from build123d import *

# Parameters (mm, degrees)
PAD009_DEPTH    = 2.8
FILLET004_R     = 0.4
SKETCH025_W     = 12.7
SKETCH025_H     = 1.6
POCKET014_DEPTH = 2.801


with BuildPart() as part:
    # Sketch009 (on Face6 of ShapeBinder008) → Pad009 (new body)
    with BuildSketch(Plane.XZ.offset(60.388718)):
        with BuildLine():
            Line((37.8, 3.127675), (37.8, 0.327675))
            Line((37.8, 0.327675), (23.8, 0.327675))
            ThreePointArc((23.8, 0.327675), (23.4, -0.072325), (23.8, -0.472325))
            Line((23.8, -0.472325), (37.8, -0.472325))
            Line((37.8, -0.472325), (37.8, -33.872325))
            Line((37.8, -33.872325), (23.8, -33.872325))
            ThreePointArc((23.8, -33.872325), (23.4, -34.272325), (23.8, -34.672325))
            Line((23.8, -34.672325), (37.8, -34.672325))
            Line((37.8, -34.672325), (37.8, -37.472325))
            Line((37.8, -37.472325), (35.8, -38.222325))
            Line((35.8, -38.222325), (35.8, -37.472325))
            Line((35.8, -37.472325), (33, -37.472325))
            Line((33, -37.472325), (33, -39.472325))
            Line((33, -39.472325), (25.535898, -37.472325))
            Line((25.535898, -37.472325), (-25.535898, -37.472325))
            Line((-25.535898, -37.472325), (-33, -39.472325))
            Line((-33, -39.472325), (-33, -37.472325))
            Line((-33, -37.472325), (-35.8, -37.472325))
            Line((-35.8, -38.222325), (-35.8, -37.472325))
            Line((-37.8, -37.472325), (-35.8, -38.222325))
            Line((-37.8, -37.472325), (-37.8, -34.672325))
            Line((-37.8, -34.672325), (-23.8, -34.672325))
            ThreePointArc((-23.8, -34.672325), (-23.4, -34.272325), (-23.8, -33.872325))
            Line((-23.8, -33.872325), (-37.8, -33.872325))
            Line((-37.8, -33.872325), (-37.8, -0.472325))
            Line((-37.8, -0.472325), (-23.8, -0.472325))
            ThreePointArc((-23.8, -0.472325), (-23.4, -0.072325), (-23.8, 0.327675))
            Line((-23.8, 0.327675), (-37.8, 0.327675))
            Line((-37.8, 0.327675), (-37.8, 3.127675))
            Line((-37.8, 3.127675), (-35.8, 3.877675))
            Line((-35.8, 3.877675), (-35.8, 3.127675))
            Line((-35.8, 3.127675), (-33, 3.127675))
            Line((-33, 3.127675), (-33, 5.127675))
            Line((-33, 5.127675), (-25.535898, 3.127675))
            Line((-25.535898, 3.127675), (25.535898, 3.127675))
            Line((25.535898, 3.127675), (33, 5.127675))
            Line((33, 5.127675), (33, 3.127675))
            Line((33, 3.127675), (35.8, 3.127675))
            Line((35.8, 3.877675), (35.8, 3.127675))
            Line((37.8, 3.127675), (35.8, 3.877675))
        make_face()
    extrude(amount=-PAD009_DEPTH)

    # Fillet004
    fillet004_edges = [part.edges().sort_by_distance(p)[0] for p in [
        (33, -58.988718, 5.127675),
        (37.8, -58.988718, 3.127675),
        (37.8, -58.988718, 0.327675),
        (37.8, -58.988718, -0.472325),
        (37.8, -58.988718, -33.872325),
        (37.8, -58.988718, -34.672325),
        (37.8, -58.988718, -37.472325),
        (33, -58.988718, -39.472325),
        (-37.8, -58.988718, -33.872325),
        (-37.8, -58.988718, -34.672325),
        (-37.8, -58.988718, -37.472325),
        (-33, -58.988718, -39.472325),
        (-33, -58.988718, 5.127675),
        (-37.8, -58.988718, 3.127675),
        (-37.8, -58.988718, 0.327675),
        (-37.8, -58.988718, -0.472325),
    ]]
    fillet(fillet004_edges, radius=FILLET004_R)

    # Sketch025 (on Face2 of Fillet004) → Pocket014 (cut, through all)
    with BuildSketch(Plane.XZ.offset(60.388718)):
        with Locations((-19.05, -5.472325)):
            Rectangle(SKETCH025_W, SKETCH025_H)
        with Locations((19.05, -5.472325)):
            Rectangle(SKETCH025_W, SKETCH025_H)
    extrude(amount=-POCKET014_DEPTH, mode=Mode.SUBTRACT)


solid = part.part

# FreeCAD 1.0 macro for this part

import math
import FreeCAD as App
import Part
import Sketcher

V = App.Vector
Q = App.Units.Quantity


def edges_at(feature, points):
    """Names of the edges that pass closest to the given points."""
    edges = feature.Shape.Edges
    near = lambda p: min(range(len(edges)), key=lambda i: edges[i].distToShape(Part.Vertex(*p))[0])
    return sorted({f"Edge{near(p) + 1}" for p in points})

doc = App.newDocument("Part")
body = doc.addObject("PartDesign::Body", "Body")

# Sketch on XZ plane
sketch1 = body.newObject("Sketcher::SketchObject", "Sketch")
sketch1.AttachmentSupport = (doc.getObject("XZ_Plane"), [""])
sketch1.MapMode = "FlatFace"
sketch1.AttachmentOffset = App.Placement(V(0, 0, 60.388718), App.Rotation())
sketch1.addGeometry([
    Part.LineSegment(V(37.8, 0.327675, 0), V(37.8, 3.127675, 0)),  # 0
    Part.LineSegment(V(37.8, 3.127675, 0), V(35.8, 3.877675, 0)),  # 1
    Part.LineSegment(V(35.8, 3.877675, 0), V(35.8, 3.127675, 0)),  # 2
    Part.LineSegment(V(35.8, 3.127675, 0), V(33, 3.127675, 0)),  # 3
    Part.LineSegment(V(33, 3.127675, 0), V(33, 5.127675, 0)),  # 4
    Part.LineSegment(V(33, 5.127675, 0), V(25.535898, 3.127675, 0)),  # 5
    Part.LineSegment(V(25.535898, 3.127675, 0), V(-25.535898, 3.127675, 0)),  # 6
    Part.LineSegment(V(-25.535898, 3.127675, 0), V(-33, 5.127675, 0)),  # 7
    Part.LineSegment(V(-33, 5.127675, 0), V(-33, 3.127675, 0)),  # 8
    Part.LineSegment(V(-33, 3.127675, 0), V(-35.8, 3.127675, 0)),  # 9
    Part.LineSegment(V(-35.8, 3.127675, 0), V(-35.8, 3.877675, 0)),  # 10
    Part.LineSegment(V(-35.8, 3.877675, 0), V(-37.8, 3.127675, 0)),  # 11
    Part.LineSegment(V(-37.8, 3.127675, 0), V(-37.8, 0.327675, 0)),  # 12
    Part.LineSegment(V(-37.8, 0.327675, 0), V(-23.8, 0.327675, 0)),  # 13
    Part.ArcOfCircle(Part.Circle(V(-23.8, -0.072325, 0), V(0, 0, 1), 0.4), math.radians(-90), math.radians(90)),  # 14
    Part.LineSegment(V(-23.8, -0.472325, 0), V(-37.8, -0.472325, 0)),  # 15
    Part.LineSegment(V(-37.8, -0.472325, 0), V(-37.8, -33.872325, 0)),  # 16
    Part.LineSegment(V(-37.8, -33.872325, 0), V(-23.8, -33.872325, 0)),  # 17
    Part.ArcOfCircle(Part.Circle(V(-23.8, -34.272325, 0), V(0, 0, 1), 0.4), math.radians(-90), math.radians(90)),  # 18
    Part.LineSegment(V(-23.8, -34.672325, 0), V(-37.8, -34.672325, 0)),  # 19
    Part.LineSegment(V(-37.8, -34.672325, 0), V(-37.8, -37.472325, 0)),  # 20
    Part.LineSegment(V(-37.8, -37.472325, 0), V(-35.8, -38.222325, 0)),  # 21
    Part.LineSegment(V(-35.8, -38.222325, 0), V(-35.8, -37.472325, 0)),  # 22
    Part.LineSegment(V(-35.8, -37.472325, 0), V(-33, -37.472325, 0)),  # 23
    Part.LineSegment(V(-33, -37.472325, 0), V(-33, -39.472325, 0)),  # 24
    Part.LineSegment(V(-33, -39.472325, 0), V(-25.535898, -37.472325, 0)),  # 25
    Part.LineSegment(V(-25.535898, -37.472325, 0), V(25.535898, -37.472325, 0)),  # 26
    Part.LineSegment(V(25.535898, -37.472325, 0), V(33, -39.472325, 0)),  # 27
    Part.LineSegment(V(33, -39.472325, 0), V(33, -37.472325, 0)),  # 28
    Part.LineSegment(V(33, -37.472325, 0), V(35.8, -37.472325, 0)),  # 29
    Part.LineSegment(V(35.8, -37.472325, 0), V(35.8, -38.222325, 0)),  # 30
    Part.LineSegment(V(35.8, -38.222325, 0), V(37.8, -37.472325, 0)),  # 31
    Part.LineSegment(V(37.8, -37.472325, 0), V(37.8, -34.672325, 0)),  # 32
    Part.LineSegment(V(37.8, -34.672325, 0), V(23.8, -34.672325, 0)),  # 33
    Part.ArcOfCircle(Part.Circle(V(23.8, -34.272325, 0), V(0, 0, 1), 0.4), math.radians(90), math.radians(270)),  # 34
    Part.LineSegment(V(23.8, -33.872325, 0), V(37.8, -33.872325, 0)),  # 35
    Part.LineSegment(V(37.8, -33.872325, 0), V(37.8, -0.472325, 0)),  # 36
    Part.LineSegment(V(37.8, -0.472325, 0), V(23.8, -0.472325, 0)),  # 37
    Part.ArcOfCircle(Part.Circle(V(23.8, -0.072325, 0), V(0, 0, 1), 0.4), math.radians(90), math.radians(270)),  # 38
    Part.LineSegment(V(23.8, 0.327675, 0), V(37.8, 0.327675, 0)),  # 39
], False)
sketch1.addConstraint([
    Sketcher.Constraint("Coincident", 0, 2, 1, 1),
    Sketcher.Constraint("Coincident", 1, 2, 2, 1),
    Sketcher.Constraint("Coincident", 2, 2, 3, 1),
    Sketcher.Constraint("Coincident", 3, 2, 4, 1),
    Sketcher.Constraint("Coincident", 4, 2, 5, 1),
    Sketcher.Constraint("Coincident", 5, 2, 6, 1),
    Sketcher.Constraint("Coincident", 6, 2, 7, 1),
    Sketcher.Constraint("Coincident", 7, 2, 8, 1),
    Sketcher.Constraint("Coincident", 8, 2, 9, 1),
    Sketcher.Constraint("Coincident", 9, 2, 10, 1),
    Sketcher.Constraint("Coincident", 10, 2, 11, 1),
    Sketcher.Constraint("Coincident", 11, 2, 12, 1),
    Sketcher.Constraint("Coincident", 12, 2, 13, 1),
    Sketcher.Constraint("Tangent", 13, 2, 14, 2),
    Sketcher.Constraint("Tangent", 14, 1, 15, 1),
    Sketcher.Constraint("Coincident", 15, 2, 16, 1),
    Sketcher.Constraint("Coincident", 16, 2, 17, 1),
    Sketcher.Constraint("Tangent", 17, 2, 18, 2),
    Sketcher.Constraint("Tangent", 18, 1, 19, 1),
    Sketcher.Constraint("Coincident", 19, 2, 20, 1),
    Sketcher.Constraint("Coincident", 20, 2, 21, 1),
    Sketcher.Constraint("Coincident", 21, 2, 22, 1),
    Sketcher.Constraint("Coincident", 22, 2, 23, 1),
    Sketcher.Constraint("Coincident", 23, 2, 24, 1),
    Sketcher.Constraint("Coincident", 24, 2, 25, 1),
    Sketcher.Constraint("Coincident", 25, 2, 26, 1),
    Sketcher.Constraint("Coincident", 26, 2, 27, 1),
    Sketcher.Constraint("Coincident", 27, 2, 28, 1),
    Sketcher.Constraint("Coincident", 28, 2, 29, 1),
    Sketcher.Constraint("Coincident", 29, 2, 30, 1),
    Sketcher.Constraint("Coincident", 30, 2, 31, 1),
    Sketcher.Constraint("Coincident", 31, 2, 32, 1),
    Sketcher.Constraint("Coincident", 32, 2, 33, 1),
    Sketcher.Constraint("Tangent", 33, 2, 34, 2),
    Sketcher.Constraint("Tangent", 34, 1, 35, 1),
    Sketcher.Constraint("Coincident", 35, 2, 36, 1),
    Sketcher.Constraint("Coincident", 36, 2, 37, 1),
    Sketcher.Constraint("Tangent", 37, 2, 38, 2),
    Sketcher.Constraint("Tangent", 38, 1, 39, 1),
    Sketcher.Constraint("Coincident", 39, 2, 0, 1),
    Sketcher.Constraint("Vertical", 0),
    Sketcher.Constraint("Vertical", 2),
    Sketcher.Constraint("Horizontal", 3),
    Sketcher.Constraint("Vertical", 4),
    Sketcher.Constraint("Horizontal", 6),
    Sketcher.Constraint("Vertical", 8),
    Sketcher.Constraint("Horizontal", 9),
    Sketcher.Constraint("Vertical", 10),
    Sketcher.Constraint("Vertical", 12),
    Sketcher.Constraint("Horizontal", 13),
    Sketcher.Constraint("Horizontal", 15),
    Sketcher.Constraint("Vertical", 16),
    Sketcher.Constraint("Horizontal", 17),
    Sketcher.Constraint("Horizontal", 19),
    Sketcher.Constraint("Vertical", 20),
    Sketcher.Constraint("Vertical", 22),
    Sketcher.Constraint("Horizontal", 23),
    Sketcher.Constraint("Vertical", 24),
    Sketcher.Constraint("Horizontal", 26),
    Sketcher.Constraint("Vertical", 28),
    Sketcher.Constraint("Horizontal", 29),
    Sketcher.Constraint("Vertical", 30),
    Sketcher.Constraint("Vertical", 32),
    Sketcher.Constraint("Horizontal", 33),
    Sketcher.Constraint("Horizontal", 35),
    Sketcher.Constraint("Vertical", 36),
    Sketcher.Constraint("Horizontal", 37),
    Sketcher.Constraint("Horizontal", 39),
    Sketcher.Constraint("Equal", 14, 18),
    Sketcher.Constraint("Equal", 18, 34),
    Sketcher.Constraint("Equal", 34, 38),
    Sketcher.Constraint("Symmetric", 18, 3, 34, 3, -2),
    Sketcher.Constraint("Symmetric", 14, 3, 38, 3, -2),
    Sketcher.Constraint("Symmetric", 4, 2, 7, 2, -2),
    Sketcher.Constraint("Symmetric", 2, 2, 9, 2, -2),
    Sketcher.Constraint("Symmetric", 0, 2, 11, 2, -2),
    Sketcher.Constraint("Symmetric", 24, 2, 27, 2, -2),
    Sketcher.Constraint("Symmetric", 22, 2, 29, 2, -2),
    Sketcher.Constraint("Symmetric", 20, 2, 31, 2, -2),
    Sketcher.Constraint("Parallel", 1, 21),
    Sketcher.Constraint("Parallel", 5, 25),
    Sketcher.Constraint("Parallel", 7, 27),
    Sketcher.Constraint("Parallel", 11, 31),
    Sketcher.Constraint("Horizontal", 0, 2, 2, 2),
    Sketcher.Constraint("Horizontal", 3, 2, 5, 2),
    Sketcher.Constraint("Horizontal", 1, 2, 10, 2),
    Sketcher.Constraint("Horizontal", 20, 2, 22, 2),
    Sketcher.Constraint("Horizontal", 23, 2, 25, 2),
    Sketcher.Constraint("Vertical", 14, 3, 18, 3),
    Sketcher.Constraint("Vertical", 12, 2, 15, 2),
    Sketcher.Constraint("Vertical", 16, 2, 19, 2),
    Sketcher.Constraint("Vertical", 10, 2, 21, 2),
    Sketcher.Constraint("Vertical", 8, 2, 23, 2),
    Sketcher.Constraint("Vertical", 6, 2, 25, 2),
    Sketcher.Constraint("Vertical", 5, 2, 26, 2),
    Sketcher.Constraint("Vertical", 32, 2, 35, 2),
    Sketcher.Constraint("Equal", 29, 0),
    Sketcher.Constraint("Equal", 12, 20),
    Sketcher.Constraint("Radius", 14, 0.4),
    Sketcher.Constraint("DistanceX", 13, 1, 13, 2, 14.0),
    Sketcher.Constraint("DistanceY", 4, 1, 4, 2, 2.0),
    Sketcher.Constraint("Angle", 5, Q("-165.000001 deg")),
    Sketcher.Constraint("DistanceX", 3, 2, 3, 1, 2.8),
    Sketcher.Constraint("DistanceY", 16, 2, 16, 1, 33.4),
    Sketcher.Constraint("DistanceX", -1, 1, 3, 2, 33.0),
    Sketcher.Constraint("DistanceX", 1, 2, 0, 2, 2.0),
    Sketcher.Constraint("DistanceY", 2, 2, 2, 1, 0.75),
    Sketcher.Constraint("DistanceY", 14, 3, -1, 1, 0.072325),
])
pad1 = body.newObject("PartDesign::Pad", "Pad")
pad1.Profile = sketch1
pad1.Length = 2.8
pad1.Reversed = True
doc.recompute()

fillet = body.newObject("PartDesign::Fillet", "Fillet")
fillet.Base = (pad1, edges_at(pad1, [
    (33, -58.989, 5.128),
    (37.8, -58.989, 3.128),
    (37.8, -58.989, 0.328),
    (37.8, -58.989, -0.472),
    (37.8, -58.989, -33.872),
    (37.8, -58.989, -34.672),
    (37.8, -58.989, -37.472),
    (33, -58.989, -39.472),
    (-37.8, -58.989, -33.872),
    (-37.8, -58.989, -34.672),
    (-37.8, -58.989, -37.472),
    (-33, -58.989, -39.472),
    (-33, -58.989, 5.128),
    (-37.8, -58.989, 3.128),
    (-37.8, -58.989, 0.328),
    (-37.8, -58.989, -0.472),
]))
fillet.Radius = 0.4

# Sketch on XZ plane
sketch2 = body.newObject("Sketcher::SketchObject", "Sketch001")
sketch2.AttachmentSupport = (doc.getObject("XZ_Plane"), [""])
sketch2.MapMode = "FlatFace"
sketch2.AttachmentOffset = App.Placement(V(0, 0, 60.388718), App.Rotation())
sketch2.addGeometry([
    Part.LineSegment(V(-25.4, -4.672325, 0), V(-25.4, -6.272325, 0)),  # 0
    Part.LineSegment(V(-25.4, -6.272325, 0), V(-12.7, -6.272325, 0)),  # 1
    Part.LineSegment(V(-12.7, -6.272325, 0), V(-12.7, -4.672325, 0)),  # 2
    Part.LineSegment(V(-12.7, -4.672325, 0), V(-25.4, -4.672325, 0)),  # 3
    Part.LineSegment(V(12.7, -4.672325, 0), V(12.7, -6.272325, 0)),  # 4
    Part.LineSegment(V(12.7, -6.272325, 0), V(25.4, -6.272325, 0)),  # 5
    Part.LineSegment(V(25.4, -6.272325, 0), V(25.4, -4.672325, 0)),  # 6
    Part.LineSegment(V(25.4, -4.672325, 0), V(12.7, -4.672325, 0)),  # 7
], False)
sketch2.addConstraint([
    Sketcher.Constraint("Coincident", 0, 2, 1, 1),
    Sketcher.Constraint("Coincident", 1, 2, 2, 1),
    Sketcher.Constraint("Coincident", 2, 2, 3, 1),
    Sketcher.Constraint("Coincident", 3, 2, 0, 1),
    Sketcher.Constraint("Coincident", 4, 2, 5, 1),
    Sketcher.Constraint("Coincident", 5, 2, 6, 1),
    Sketcher.Constraint("Coincident", 6, 2, 7, 1),
    Sketcher.Constraint("Coincident", 7, 2, 4, 1),
    Sketcher.Constraint("Vertical", 0),
    Sketcher.Constraint("Horizontal", 1),
    Sketcher.Constraint("Vertical", 2),
    Sketcher.Constraint("Horizontal", 3),
    Sketcher.Constraint("Vertical", 4),
    Sketcher.Constraint("Horizontal", 5),
    Sketcher.Constraint("Vertical", 6),
    Sketcher.Constraint("Horizontal", 7),
    Sketcher.Constraint("Symmetric", 1, 2, 4, 2, -2),
    Sketcher.Constraint("Symmetric", 3, 2, 6, 2, -2),
    Sketcher.Constraint("DistanceX", 1, 1, 1, 2, 12.7),
    Sketcher.Constraint("DistanceY", 0, 2, 0, 1, 1.6),
    Sketcher.Constraint("DistanceX", 0, 2, -1, 1, 25.4),
    Sketcher.Constraint("DistanceY", 0, 2, -1, 1, 6.272325),
])
pocket1 = body.newObject("PartDesign::Pocket", "Pocket")
pocket1.Profile = sketch2
pocket1.Type = "ThroughAll"

doc.recompute()
